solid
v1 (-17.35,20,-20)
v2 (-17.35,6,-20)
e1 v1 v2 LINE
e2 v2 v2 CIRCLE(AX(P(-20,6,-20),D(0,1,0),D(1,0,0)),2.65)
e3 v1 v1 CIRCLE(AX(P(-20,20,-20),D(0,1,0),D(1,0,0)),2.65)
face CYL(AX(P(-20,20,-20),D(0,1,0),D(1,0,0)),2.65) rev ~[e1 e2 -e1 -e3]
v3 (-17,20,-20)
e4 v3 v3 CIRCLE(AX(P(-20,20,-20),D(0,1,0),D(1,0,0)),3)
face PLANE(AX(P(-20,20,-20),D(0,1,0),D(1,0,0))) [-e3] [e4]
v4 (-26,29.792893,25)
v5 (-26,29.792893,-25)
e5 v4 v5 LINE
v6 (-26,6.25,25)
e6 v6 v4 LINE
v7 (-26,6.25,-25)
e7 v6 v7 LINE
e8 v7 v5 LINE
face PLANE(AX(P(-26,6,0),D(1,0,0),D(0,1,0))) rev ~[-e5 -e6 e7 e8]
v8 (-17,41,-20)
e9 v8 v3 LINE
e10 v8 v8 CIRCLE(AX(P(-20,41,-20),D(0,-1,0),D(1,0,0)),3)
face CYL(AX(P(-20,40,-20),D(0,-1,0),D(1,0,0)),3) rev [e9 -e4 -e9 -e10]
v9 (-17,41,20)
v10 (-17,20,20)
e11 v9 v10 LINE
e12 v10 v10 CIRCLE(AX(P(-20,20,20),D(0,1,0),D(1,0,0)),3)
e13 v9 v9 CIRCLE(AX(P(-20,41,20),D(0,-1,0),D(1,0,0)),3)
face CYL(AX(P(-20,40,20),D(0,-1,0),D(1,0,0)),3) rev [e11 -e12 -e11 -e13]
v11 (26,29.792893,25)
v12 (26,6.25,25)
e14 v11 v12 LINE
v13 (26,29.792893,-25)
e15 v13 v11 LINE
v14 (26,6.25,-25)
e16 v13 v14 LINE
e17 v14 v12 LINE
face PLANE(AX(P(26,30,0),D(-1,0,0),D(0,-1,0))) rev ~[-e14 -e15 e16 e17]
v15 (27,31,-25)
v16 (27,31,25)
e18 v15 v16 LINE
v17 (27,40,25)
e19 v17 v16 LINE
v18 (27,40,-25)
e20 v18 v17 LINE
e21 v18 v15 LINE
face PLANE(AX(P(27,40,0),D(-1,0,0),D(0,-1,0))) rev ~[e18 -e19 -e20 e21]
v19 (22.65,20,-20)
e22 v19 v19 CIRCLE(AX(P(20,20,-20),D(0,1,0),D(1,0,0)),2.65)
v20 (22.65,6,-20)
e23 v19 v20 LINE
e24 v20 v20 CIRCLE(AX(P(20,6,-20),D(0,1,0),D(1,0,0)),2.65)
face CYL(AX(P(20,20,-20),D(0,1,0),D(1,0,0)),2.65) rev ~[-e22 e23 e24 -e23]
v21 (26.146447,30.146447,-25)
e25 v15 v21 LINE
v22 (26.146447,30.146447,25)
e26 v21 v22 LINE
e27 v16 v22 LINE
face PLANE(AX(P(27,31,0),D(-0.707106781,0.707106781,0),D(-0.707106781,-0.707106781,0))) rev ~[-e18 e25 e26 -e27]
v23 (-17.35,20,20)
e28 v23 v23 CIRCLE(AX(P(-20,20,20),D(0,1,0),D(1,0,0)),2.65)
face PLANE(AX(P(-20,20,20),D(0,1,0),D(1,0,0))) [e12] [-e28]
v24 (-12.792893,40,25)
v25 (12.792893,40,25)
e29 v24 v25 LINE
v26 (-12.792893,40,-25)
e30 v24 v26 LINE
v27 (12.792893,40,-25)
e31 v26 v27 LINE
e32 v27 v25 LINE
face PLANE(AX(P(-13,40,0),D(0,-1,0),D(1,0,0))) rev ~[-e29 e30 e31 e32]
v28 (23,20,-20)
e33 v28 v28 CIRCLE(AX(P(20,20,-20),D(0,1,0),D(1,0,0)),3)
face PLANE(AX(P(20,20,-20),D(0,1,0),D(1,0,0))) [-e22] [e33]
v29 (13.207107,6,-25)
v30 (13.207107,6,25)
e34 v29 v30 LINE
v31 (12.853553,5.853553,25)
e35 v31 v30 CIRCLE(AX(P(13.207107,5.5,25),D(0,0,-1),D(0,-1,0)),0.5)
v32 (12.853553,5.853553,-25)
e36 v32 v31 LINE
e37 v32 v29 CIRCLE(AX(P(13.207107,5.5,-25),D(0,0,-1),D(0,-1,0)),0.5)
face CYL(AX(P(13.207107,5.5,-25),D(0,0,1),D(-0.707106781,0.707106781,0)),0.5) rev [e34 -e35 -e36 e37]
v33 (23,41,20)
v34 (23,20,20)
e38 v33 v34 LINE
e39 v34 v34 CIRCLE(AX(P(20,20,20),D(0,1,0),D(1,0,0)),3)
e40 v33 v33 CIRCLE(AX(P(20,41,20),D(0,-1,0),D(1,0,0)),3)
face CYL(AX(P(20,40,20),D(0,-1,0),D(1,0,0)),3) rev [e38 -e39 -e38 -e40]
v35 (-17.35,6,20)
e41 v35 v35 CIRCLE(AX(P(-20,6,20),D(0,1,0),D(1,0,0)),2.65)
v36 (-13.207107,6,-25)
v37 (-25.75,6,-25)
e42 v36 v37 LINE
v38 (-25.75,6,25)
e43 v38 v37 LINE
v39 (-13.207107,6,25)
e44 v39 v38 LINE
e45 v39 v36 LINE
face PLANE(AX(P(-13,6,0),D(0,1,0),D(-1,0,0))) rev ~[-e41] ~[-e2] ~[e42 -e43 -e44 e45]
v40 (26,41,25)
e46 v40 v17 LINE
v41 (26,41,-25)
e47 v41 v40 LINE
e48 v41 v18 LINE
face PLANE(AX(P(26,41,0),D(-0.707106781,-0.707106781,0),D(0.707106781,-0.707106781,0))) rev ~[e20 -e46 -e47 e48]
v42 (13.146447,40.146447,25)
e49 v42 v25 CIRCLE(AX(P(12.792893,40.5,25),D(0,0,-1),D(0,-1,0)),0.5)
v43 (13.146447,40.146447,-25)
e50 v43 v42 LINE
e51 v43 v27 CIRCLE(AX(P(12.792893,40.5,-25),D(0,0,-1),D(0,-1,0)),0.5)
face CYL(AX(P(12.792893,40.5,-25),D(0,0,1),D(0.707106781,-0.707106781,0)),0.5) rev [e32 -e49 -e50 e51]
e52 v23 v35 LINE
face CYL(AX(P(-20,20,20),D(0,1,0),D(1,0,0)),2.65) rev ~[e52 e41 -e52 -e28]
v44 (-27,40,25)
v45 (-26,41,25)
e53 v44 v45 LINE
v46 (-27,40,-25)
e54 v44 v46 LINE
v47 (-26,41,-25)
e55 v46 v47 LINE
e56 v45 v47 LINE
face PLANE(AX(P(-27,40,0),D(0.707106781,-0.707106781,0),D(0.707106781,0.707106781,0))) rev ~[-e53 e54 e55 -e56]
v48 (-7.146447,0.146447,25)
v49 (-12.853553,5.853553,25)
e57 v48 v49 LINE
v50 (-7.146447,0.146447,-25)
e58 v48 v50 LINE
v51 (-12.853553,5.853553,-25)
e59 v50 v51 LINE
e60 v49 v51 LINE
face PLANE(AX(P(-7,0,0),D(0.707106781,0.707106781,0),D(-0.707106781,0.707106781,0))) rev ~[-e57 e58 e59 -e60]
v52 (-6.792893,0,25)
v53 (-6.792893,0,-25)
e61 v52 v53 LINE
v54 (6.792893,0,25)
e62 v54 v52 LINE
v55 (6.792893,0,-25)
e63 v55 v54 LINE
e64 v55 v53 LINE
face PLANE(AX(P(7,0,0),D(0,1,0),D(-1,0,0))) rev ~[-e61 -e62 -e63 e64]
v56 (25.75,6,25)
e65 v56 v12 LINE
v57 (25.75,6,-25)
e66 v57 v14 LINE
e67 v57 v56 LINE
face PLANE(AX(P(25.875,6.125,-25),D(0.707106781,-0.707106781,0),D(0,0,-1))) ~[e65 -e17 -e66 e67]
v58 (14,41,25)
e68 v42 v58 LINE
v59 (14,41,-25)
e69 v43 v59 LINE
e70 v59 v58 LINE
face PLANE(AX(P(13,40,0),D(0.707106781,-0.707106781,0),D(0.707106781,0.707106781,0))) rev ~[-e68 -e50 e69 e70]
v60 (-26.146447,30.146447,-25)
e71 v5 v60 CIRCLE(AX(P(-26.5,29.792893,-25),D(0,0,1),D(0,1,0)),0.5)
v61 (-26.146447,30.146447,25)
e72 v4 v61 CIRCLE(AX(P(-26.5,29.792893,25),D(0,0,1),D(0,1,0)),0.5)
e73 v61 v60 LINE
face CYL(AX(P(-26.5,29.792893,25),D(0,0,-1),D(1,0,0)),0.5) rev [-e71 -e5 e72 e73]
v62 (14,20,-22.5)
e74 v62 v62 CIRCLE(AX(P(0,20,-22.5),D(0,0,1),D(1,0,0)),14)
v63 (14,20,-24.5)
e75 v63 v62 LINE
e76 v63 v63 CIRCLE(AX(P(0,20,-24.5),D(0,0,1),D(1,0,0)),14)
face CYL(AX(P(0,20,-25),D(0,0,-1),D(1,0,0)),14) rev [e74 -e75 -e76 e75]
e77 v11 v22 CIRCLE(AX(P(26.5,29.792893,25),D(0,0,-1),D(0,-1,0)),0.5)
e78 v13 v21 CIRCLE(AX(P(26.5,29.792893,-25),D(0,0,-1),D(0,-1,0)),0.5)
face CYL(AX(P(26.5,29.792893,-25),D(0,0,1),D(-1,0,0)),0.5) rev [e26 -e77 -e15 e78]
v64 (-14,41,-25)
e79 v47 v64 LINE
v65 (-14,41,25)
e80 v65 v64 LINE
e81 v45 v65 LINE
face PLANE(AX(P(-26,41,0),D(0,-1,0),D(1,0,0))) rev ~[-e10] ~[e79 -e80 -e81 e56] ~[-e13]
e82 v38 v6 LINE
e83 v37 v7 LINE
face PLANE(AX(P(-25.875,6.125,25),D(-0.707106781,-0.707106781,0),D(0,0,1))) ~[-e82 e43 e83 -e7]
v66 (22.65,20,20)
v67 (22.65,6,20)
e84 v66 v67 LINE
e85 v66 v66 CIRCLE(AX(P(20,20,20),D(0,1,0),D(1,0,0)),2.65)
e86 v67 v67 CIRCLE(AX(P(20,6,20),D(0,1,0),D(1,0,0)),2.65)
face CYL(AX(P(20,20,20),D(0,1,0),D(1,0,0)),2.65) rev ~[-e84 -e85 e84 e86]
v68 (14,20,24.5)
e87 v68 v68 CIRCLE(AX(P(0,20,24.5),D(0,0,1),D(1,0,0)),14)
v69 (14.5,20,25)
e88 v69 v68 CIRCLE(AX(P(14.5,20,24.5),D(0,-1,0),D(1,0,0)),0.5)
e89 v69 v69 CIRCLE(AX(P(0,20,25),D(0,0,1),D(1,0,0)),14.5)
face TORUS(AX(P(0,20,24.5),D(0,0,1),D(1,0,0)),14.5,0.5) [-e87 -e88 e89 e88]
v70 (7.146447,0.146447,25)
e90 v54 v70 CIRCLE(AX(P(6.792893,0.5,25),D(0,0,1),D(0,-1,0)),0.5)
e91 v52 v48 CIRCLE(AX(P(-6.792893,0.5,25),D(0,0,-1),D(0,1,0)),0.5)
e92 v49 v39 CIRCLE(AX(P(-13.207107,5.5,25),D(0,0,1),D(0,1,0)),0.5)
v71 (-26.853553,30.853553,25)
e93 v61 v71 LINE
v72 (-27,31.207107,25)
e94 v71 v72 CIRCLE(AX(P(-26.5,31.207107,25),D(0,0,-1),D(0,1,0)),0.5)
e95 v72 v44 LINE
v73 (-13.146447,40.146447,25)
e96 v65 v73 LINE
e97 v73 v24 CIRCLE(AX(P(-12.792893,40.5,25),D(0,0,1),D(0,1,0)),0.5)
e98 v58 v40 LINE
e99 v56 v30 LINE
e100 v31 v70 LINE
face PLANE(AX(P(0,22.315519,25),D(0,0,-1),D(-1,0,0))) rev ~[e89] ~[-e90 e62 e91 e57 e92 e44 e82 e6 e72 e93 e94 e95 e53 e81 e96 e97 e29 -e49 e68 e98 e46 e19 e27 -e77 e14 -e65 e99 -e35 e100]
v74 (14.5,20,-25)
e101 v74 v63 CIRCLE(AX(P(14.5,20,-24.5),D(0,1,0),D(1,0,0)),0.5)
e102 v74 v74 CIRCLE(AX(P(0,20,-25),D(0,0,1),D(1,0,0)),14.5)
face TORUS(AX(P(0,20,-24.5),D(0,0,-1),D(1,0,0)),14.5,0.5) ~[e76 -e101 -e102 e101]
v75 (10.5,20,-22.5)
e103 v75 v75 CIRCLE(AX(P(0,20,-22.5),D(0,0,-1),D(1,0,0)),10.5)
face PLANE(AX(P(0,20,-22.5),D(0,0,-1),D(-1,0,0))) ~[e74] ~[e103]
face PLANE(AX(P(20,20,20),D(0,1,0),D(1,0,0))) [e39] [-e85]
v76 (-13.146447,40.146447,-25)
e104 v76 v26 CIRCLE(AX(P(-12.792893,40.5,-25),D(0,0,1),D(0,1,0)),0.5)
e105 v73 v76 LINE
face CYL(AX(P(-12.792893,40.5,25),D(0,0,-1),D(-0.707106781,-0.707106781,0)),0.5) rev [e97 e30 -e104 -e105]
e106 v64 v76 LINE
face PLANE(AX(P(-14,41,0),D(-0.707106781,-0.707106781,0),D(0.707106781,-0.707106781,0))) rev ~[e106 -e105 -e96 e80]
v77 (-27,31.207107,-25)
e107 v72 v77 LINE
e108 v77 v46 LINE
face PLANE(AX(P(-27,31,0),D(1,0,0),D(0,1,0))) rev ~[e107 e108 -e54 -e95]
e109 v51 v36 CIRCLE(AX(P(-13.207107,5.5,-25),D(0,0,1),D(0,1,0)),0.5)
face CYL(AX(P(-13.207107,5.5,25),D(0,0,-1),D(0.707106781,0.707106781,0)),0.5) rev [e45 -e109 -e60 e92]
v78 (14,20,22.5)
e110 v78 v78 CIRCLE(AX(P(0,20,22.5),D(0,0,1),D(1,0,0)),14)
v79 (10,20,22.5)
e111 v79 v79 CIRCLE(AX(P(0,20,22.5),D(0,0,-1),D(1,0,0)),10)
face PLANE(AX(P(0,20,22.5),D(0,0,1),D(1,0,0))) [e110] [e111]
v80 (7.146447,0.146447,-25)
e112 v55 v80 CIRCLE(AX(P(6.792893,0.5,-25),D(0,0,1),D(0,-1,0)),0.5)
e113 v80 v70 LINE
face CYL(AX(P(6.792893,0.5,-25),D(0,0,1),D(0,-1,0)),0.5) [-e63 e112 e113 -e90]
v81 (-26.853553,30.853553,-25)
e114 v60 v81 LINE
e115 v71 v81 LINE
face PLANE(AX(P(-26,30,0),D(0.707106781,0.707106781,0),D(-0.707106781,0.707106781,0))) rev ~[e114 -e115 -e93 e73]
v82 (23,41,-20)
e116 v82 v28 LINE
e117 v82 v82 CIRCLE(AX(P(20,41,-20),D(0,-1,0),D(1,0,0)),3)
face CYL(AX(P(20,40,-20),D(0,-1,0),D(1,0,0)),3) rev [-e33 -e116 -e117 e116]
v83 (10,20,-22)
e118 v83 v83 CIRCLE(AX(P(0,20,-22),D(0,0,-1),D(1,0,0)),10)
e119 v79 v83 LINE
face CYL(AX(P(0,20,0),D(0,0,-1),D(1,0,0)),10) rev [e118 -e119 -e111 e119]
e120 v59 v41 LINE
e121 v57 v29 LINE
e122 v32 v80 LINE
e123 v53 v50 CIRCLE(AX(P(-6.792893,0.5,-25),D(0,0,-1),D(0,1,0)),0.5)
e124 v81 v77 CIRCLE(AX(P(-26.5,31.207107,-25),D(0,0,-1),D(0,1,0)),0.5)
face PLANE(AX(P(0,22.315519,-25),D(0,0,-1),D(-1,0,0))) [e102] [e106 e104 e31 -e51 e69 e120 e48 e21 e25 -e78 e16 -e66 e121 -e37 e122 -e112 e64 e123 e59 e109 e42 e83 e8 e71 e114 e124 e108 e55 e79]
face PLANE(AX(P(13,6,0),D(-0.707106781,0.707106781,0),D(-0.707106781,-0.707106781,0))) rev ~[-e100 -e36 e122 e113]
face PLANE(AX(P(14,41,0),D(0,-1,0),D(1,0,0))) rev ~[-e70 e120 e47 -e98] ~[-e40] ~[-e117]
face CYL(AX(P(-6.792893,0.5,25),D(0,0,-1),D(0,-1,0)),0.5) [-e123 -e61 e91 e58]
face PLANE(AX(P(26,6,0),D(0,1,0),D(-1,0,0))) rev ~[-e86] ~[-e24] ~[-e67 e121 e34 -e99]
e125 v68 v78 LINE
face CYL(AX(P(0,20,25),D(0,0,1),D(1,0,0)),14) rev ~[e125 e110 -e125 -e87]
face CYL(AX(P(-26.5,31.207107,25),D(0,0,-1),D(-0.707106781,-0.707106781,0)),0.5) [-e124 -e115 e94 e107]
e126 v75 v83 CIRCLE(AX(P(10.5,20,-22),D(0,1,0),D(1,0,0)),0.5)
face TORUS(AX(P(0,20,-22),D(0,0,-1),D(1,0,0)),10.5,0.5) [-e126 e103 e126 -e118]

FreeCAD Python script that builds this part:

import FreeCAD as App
import Part
import Sketcher
Q = App.Units.Quantity


def edges_at(feature, points):
    """Names of the edges that pass closest to the given points."""
    edges = feature.Shape.Edges
    near = lambda p: min(range(len(edges)), key=lambda i: edges[i].distToShape(Part.Vertex(*p))[0])
    return sorted({f"Edge{near(p) + 1}" for p in points})

doc = App.newDocument("Part")
body = doc.addObject("PartDesign::Body", "Body")

# Sketch on XY plane
sketch1 = body.newObject("Sketcher::SketchObject", "Sketch")
sketch1.AttachmentSupport = (doc.getObject("XY_Plane"), [""])
sketch1.MapMode = "FlatFace"
sketch1.addGeometry(Part.LineSegment(App.Vector(-7, 0, 0), App.Vector(7, 0, 0)), False)
sketch1.addGeometry(Part.LineSegment(App.Vector(7, 0, 0), App.Vector(13, 6, 0)), False)
sketch1.addGeometry(Part.LineSegment(App.Vector(13, 6, 0), App.Vector(26, 6, 0)), False)
sketch1.addGeometry(Part.LineSegment(App.Vector(26, 6, 0), App.Vector(26, 30, 0)), False)
sketch1.addGeometry(Part.LineSegment(App.Vector(26, 30, 0), App.Vector(27, 31, 0)), False)
sketch1.addGeometry(Part.LineSegment(App.Vector(27, 31, 0), App.Vector(27, 40, 0)), False)
sketch1.addGeometry(Part.LineSegment(App.Vector(27, 40, 0), App.Vector(26, 41, 0)), False)
sketch1.addGeometry(Part.LineSegment(App.Vector(26, 41, 0), App.Vector(14, 41, 0)), False)
sketch1.addGeometry(Part.LineSegment(App.Vector(14, 41, 0), App.Vector(13, 40, 0)), False)
sketch1.addGeometry(Part.LineSegment(App.Vector(13, 40, 0), App.Vector(-13, 40, 0)), False)
sketch1.addGeometry(Part.LineSegment(App.Vector(-13, 40, 0), App.Vector(-14, 41, 0)), False)
sketch1.addGeometry(Part.LineSegment(App.Vector(-14, 41, 0), App.Vector(-26, 41, 0)), False)
sketch1.addGeometry(Part.LineSegment(App.Vector(-26, 41, 0), App.Vector(-27, 40, 0)), False)
sketch1.addGeometry(Part.LineSegment(App.Vector(-27, 40, 0), App.Vector(-27, 31, 0)), False)
sketch1.addGeometry(Part.LineSegment(App.Vector(-27, 31, 0), App.Vector(-26, 30, 0)), False)
sketch1.addGeometry(Part.LineSegment(App.Vector(-26, 30, 0), App.Vector(-26, 6, 0)), False)
sketch1.addGeometry(Part.LineSegment(App.Vector(-26, 6, 0), App.Vector(-13, 6, 0)), False)
sketch1.addGeometry(Part.LineSegment(App.Vector(-13, 6, 0), App.Vector(-7, 0, 0)), False)
sketch1.addGeometry(Part.Circle(App.Vector(0, 20, 0), App.Vector(0, 0, 1), 10), False)
sketch1.addConstraint(Sketcher.Constraint("Coincident", 0, 2, 1, 1))
sketch1.addConstraint(Sketcher.Constraint("Coincident", 1, 2, 2, 1))
sketch1.addConstraint(Sketcher.Constraint("Coincident", 2, 2, 3, 1))
sketch1.addConstraint(Sketcher.Constraint("Coincident", 3, 2, 4, 1))
sketch1.addConstraint(Sketcher.Constraint("Coincident", 4, 2, 5, 1))
sketch1.addConstraint(Sketcher.Constraint("Coincident", 5, 2, 6, 1))
sketch1.addConstraint(Sketcher.Constraint("Coincident", 6, 2, 7, 1))
sketch1.addConstraint(Sketcher.Constraint("Coincident", 7, 2, 8, 1))
sketch1.addConstraint(Sketcher.Constraint("Coincident", 8, 2, 9, 1))
sketch1.addConstraint(Sketcher.Constraint("Coincident", 9, 2, 10, 1))
sketch1.addConstraint(Sketcher.Constraint("Coincident", 10, 2, 11, 1))
sketch1.addConstraint(Sketcher.Constraint("Coincident", 11, 2, 12, 1))
sketch1.addConstraint(Sketcher.Constraint("Coincident", 12, 2, 13, 1))
sketch1.addConstraint(Sketcher.Constraint("Coincident", 13, 2, 14, 1))
sketch1.addConstraint(Sketcher.Constraint("Coincident", 14, 2, 15, 1))
sketch1.addConstraint(Sketcher.Constraint("Coincident", 15, 2, 16, 1))
sketch1.addConstraint(Sketcher.Constraint("Coincident", 16, 2, 17, 1))
sketch1.addConstraint(Sketcher.Constraint("Coincident", 17, 2, 0, 1))
sketch1.addConstraint(Sketcher.Constraint("Horizontal", 0))
sketch1.addConstraint(Sketcher.Constraint("Horizontal", 2))
sketch1.addConstraint(Sketcher.Constraint("Vertical", 3))
sketch1.addConstraint(Sketcher.Constraint("Vertical", 5))
sketch1.addConstraint(Sketcher.Constraint("Horizontal", 7))
sketch1.addConstraint(Sketcher.Constraint("Horizontal", 9))
sketch1.addConstraint(Sketcher.Constraint("Horizontal", 11))
sketch1.addConstraint(Sketcher.Constraint("Vertical", 13))
sketch1.addConstraint(Sketcher.Constraint("Vertical", 15))
sketch1.addConstraint(Sketcher.Constraint("Horizontal", 16))
sketch1.addConstraint(Sketcher.Constraint("Symmetric", 0, 2, 17, 2, -1, 1))
sketch1.addConstraint(Sketcher.Constraint("Symmetric", 7, 2, 10, 2, -2))
sketch1.addConstraint(Sketcher.Constraint("Symmetric", 5, 2, 12, 2, -2))
sketch1.addConstraint(Sketcher.Constraint("Symmetric", 3, 2, 14, 2, -2))
sketch1.addConstraint(Sketcher.Constraint("Symmetric", 1, 2, 16, 2, -2))
sketch1.addConstraint(Sketcher.Constraint("PointOnObject", 18, 3, -2))
sketch1.addConstraint(Sketcher.Constraint("Parallel", 1, 4))
sketch1.addConstraint(Sketcher.Constraint("Perpendicular", 4, 6))
sketch1.addConstraint(Sketcher.Constraint("Perpendicular", 6, 8))
sketch1.addConstraint(Sketcher.Constraint("Perpendicular", 8, 10))
sketch1.addConstraint(Sketcher.Constraint("Perpendicular", 10, 12))
sketch1.addConstraint(Sketcher.Constraint("Perpendicular", 12, 14))
sketch1.addConstraint(Sketcher.Constraint("Parallel", 14, 17))
sketch1.addConstraint(Sketcher.Constraint("Horizontal", 5, 2, 8, 2))
sketch1.addConstraint(Sketcher.Constraint("Vertical", 3, 2, 6, 2))
sketch1.addConstraint(Sketcher.Constraint("Vertical", 1, 2, 8, 2))
sketch1.addConstraint(Sketcher.Constraint("Diameter", 18, Q("20 mm")))
sketch1.addConstraint(Sketcher.Constraint("DistanceX", 0, 1, 0, 2, Q("14 mm")))
sketch1.addConstraint(Sketcher.Constraint("DistanceX", 2, 1, 2, 2, Q("13 mm")))
sketch1.addConstraint(Sketcher.Constraint("DistanceX", 7, 2, 7, 1, Q("12 mm")))
sketch1.addConstraint(Sketcher.Constraint("DistanceX", 9, 2, 9, 1, Q("26 mm")))
sketch1.addConstraint(Sketcher.Constraint("DistanceY", 3, 1, 3, 2, Q("24 mm")))
sketch1.addConstraint(Sketcher.Constraint("DistanceY", 5, 1, 5, 2, Q("9 mm")))
sketch1.addConstraint(Sketcher.Constraint("DistanceY", -1, 1, 18, 3, Q("20 mm")))
pad1 = body.newObject("PartDesign::Pad", "Pad")
pad1.Profile = sketch1
pad1.Length = 50
pad1.Midplane = True

# Sketch on XZ plane
sketch2 = body.newObject("Sketcher::SketchObject", "Sketch001")
sketch2.AttachmentSupport = (doc.getObject("XZ_Plane"), [""])
sketch2.MapMode = "FlatFace"
sketch2.AttachmentOffset = App.Placement(App.Vector(0, 0, -40), App.Rotation())
sketch2.addGeometry(Part.Circle(App.Vector(20, 20, 0), App.Vector(0, 0, 1), 3), False)
sketch2.addGeometry(Part.Circle(App.Vector(20, -20, 0), App.Vector(0, 0, 1), 3), False)
sketch2.addGeometry(Part.Circle(App.Vector(-20, 20, 0), App.Vector(0, 0, 1), 3), False)
sketch2.addGeometry(Part.Circle(App.Vector(-20, -20, 0), App.Vector(0, 0, 1), 3), False)
sketch2.addConstraint(Sketcher.Constraint("Equal", 0, 1))
sketch2.addConstraint(Sketcher.Constraint("Equal", 1, 2))
sketch2.addConstraint(Sketcher.Constraint("Equal", 2, 3))
sketch2.addConstraint(Sketcher.Constraint("Symmetric", 1, 3, 2, 3, -1, 1))
sketch2.addConstraint(Sketcher.Constraint("Symmetric", 0, 3, 3, 3, -1, 1))
sketch2.addConstraint(Sketcher.Constraint("Symmetric", 0, 3, 2, 3, -2))
sketch2.addConstraint(Sketcher.Constraint("Diameter", 0, Q("6 mm")))
sketch2.addConstraint(Sketcher.Constraint("DistanceX", -1, 1, 0, 3, Q("20 mm")))
sketch2.addConstraint(Sketcher.Constraint("DistanceY", -1, 1, 0, 3, Q("20 mm")))
pocket1 = body.newObject("PartDesign::Pocket", "Pocket")
pocket1.Profile = sketch2
pocket1.Type = "TwoLengths"
pocket1.Length = 11
pocket1.Length2 = 20

# Sketch on XZ plane
sketch3 = body.newObject("Sketcher::SketchObject", "Sketch002")
sketch3.AttachmentSupport = (doc.getObject("XZ_Plane"), [""])
sketch3.MapMode = "FlatFace"
sketch3.AttachmentOffset = App.Placement(App.Vector(0, 0, -20), App.Rotation())
sketch3.addGeometry(Part.Circle(App.Vector(-20, 20, 0), App.Vector(0, 0, 1), 2.65), False)
sketch3.addGeometry(Part.Circle(App.Vector(20, 20, 0), App.Vector(0, 0, 1), 2.65), False)
sketch3.addGeometry(Part.Circle(App.Vector(20, -20, 0), App.Vector(0, 0, 1), 2.65), False)
sketch3.addGeometry(Part.Circle(App.Vector(-20, -20, 0), App.Vector(0, 0, 1), 2.65), False)
sketch3.addConstraint(Sketcher.Constraint("Equal", 0, 1))
sketch3.addConstraint(Sketcher.Constraint("Equal", 1, 2))
sketch3.addConstraint(Sketcher.Constraint("Equal", 2, 3))
sketch3.addConstraint(Sketcher.Constraint("Symmetric", 0, 3, 2, 3, -1, 1))
sketch3.addConstraint(Sketcher.Constraint("Symmetric", 1, 3, 3, 3, -1, 1))
sketch3.addConstraint(Sketcher.Constraint("Symmetric", 0, 3, 1, 3, -2))
sketch3.addConstraint(Sketcher.Constraint("Diameter", 0, Q("5.3 mm")))
sketch3.addConstraint(Sketcher.Constraint("DistanceX", 0, 3, -1, 1, Q("20 mm")))
sketch3.addConstraint(Sketcher.Constraint("DistanceY", -1, 1, 0, 3, Q("20 mm")))
pocket2 = body.newObject("PartDesign::Pocket", "Pocket001")
pocket2.Profile = sketch3
pocket2.Type = "ThroughAll"
pocket2.Reversed = True

# Sketch on XY plane
sketch4 = body.newObject("Sketcher::SketchObject", "Sketch003")
sketch4.AttachmentSupport = (doc.getObject("XY_Plane"), [""])
sketch4.MapMode = "FlatFace"
sketch4.AttachmentOffset = App.Placement(App.Vector(0, 0, 25), App.Rotation())
sketch4.addGeometry(Part.Circle(App.Vector(0, 20, 0), App.Vector(0, 0, 1), 14), False)
sketch4.addConstraint(Sketcher.Constraint("PointOnObject", 0, 3, -2))
sketch4.addConstraint(Sketcher.Constraint("Diameter", 0, Q("28 mm")))
sketch4.addConstraint(Sketcher.Constraint("DistanceY", -1, 1, 0, 3, Q("20 mm")))
pocket3 = body.newObject("PartDesign::Pocket", "Pocket002")
pocket3.Profile = sketch4
pocket3.Length = 2.5
doc.recompute()

mirrored = body.newObject("PartDesign::Mirrored", "Mirrored")
mirrored.Originals = [pocket3]
mirrored.MirrorPlane = (doc.getObject("XY_Plane"), [""])
body.Tip = mirrored
doc.recompute()

fillet = body.newObject("PartDesign::Fillet", "Fillet")
fillet.Base = (mirrored, edges_at(mirrored, [
    (7, 0, 0),
    (-7, 0, 0),
    (-13, 6, 0),
    (-26, 30, 0),
    (-27, 31, 0),
    (-13, 40, 0),
    (13, 40, 0),
    (26, 30, 0),
    (13, 6, 0),
    (-10, 20, -22.5),
]))
fillet.Radius = 0.5
doc.recompute()

chamfer = body.newObject("PartDesign::Chamfer", "Chamfer")
chamfer.Base = (fillet, edges_at(fillet, [(-26, 6, 0), (26, 6, 0)]))
chamfer.Size = 0.25
doc.recompute()

fillet2 = body.newObject("PartDesign::Fillet", "Fillet001")
fillet2.Base = (chamfer, edges_at(chamfer, [(-14, 20, 25), (-14, 20, -25)]))
fillet2.Radius = 0.5

doc.recompute()
